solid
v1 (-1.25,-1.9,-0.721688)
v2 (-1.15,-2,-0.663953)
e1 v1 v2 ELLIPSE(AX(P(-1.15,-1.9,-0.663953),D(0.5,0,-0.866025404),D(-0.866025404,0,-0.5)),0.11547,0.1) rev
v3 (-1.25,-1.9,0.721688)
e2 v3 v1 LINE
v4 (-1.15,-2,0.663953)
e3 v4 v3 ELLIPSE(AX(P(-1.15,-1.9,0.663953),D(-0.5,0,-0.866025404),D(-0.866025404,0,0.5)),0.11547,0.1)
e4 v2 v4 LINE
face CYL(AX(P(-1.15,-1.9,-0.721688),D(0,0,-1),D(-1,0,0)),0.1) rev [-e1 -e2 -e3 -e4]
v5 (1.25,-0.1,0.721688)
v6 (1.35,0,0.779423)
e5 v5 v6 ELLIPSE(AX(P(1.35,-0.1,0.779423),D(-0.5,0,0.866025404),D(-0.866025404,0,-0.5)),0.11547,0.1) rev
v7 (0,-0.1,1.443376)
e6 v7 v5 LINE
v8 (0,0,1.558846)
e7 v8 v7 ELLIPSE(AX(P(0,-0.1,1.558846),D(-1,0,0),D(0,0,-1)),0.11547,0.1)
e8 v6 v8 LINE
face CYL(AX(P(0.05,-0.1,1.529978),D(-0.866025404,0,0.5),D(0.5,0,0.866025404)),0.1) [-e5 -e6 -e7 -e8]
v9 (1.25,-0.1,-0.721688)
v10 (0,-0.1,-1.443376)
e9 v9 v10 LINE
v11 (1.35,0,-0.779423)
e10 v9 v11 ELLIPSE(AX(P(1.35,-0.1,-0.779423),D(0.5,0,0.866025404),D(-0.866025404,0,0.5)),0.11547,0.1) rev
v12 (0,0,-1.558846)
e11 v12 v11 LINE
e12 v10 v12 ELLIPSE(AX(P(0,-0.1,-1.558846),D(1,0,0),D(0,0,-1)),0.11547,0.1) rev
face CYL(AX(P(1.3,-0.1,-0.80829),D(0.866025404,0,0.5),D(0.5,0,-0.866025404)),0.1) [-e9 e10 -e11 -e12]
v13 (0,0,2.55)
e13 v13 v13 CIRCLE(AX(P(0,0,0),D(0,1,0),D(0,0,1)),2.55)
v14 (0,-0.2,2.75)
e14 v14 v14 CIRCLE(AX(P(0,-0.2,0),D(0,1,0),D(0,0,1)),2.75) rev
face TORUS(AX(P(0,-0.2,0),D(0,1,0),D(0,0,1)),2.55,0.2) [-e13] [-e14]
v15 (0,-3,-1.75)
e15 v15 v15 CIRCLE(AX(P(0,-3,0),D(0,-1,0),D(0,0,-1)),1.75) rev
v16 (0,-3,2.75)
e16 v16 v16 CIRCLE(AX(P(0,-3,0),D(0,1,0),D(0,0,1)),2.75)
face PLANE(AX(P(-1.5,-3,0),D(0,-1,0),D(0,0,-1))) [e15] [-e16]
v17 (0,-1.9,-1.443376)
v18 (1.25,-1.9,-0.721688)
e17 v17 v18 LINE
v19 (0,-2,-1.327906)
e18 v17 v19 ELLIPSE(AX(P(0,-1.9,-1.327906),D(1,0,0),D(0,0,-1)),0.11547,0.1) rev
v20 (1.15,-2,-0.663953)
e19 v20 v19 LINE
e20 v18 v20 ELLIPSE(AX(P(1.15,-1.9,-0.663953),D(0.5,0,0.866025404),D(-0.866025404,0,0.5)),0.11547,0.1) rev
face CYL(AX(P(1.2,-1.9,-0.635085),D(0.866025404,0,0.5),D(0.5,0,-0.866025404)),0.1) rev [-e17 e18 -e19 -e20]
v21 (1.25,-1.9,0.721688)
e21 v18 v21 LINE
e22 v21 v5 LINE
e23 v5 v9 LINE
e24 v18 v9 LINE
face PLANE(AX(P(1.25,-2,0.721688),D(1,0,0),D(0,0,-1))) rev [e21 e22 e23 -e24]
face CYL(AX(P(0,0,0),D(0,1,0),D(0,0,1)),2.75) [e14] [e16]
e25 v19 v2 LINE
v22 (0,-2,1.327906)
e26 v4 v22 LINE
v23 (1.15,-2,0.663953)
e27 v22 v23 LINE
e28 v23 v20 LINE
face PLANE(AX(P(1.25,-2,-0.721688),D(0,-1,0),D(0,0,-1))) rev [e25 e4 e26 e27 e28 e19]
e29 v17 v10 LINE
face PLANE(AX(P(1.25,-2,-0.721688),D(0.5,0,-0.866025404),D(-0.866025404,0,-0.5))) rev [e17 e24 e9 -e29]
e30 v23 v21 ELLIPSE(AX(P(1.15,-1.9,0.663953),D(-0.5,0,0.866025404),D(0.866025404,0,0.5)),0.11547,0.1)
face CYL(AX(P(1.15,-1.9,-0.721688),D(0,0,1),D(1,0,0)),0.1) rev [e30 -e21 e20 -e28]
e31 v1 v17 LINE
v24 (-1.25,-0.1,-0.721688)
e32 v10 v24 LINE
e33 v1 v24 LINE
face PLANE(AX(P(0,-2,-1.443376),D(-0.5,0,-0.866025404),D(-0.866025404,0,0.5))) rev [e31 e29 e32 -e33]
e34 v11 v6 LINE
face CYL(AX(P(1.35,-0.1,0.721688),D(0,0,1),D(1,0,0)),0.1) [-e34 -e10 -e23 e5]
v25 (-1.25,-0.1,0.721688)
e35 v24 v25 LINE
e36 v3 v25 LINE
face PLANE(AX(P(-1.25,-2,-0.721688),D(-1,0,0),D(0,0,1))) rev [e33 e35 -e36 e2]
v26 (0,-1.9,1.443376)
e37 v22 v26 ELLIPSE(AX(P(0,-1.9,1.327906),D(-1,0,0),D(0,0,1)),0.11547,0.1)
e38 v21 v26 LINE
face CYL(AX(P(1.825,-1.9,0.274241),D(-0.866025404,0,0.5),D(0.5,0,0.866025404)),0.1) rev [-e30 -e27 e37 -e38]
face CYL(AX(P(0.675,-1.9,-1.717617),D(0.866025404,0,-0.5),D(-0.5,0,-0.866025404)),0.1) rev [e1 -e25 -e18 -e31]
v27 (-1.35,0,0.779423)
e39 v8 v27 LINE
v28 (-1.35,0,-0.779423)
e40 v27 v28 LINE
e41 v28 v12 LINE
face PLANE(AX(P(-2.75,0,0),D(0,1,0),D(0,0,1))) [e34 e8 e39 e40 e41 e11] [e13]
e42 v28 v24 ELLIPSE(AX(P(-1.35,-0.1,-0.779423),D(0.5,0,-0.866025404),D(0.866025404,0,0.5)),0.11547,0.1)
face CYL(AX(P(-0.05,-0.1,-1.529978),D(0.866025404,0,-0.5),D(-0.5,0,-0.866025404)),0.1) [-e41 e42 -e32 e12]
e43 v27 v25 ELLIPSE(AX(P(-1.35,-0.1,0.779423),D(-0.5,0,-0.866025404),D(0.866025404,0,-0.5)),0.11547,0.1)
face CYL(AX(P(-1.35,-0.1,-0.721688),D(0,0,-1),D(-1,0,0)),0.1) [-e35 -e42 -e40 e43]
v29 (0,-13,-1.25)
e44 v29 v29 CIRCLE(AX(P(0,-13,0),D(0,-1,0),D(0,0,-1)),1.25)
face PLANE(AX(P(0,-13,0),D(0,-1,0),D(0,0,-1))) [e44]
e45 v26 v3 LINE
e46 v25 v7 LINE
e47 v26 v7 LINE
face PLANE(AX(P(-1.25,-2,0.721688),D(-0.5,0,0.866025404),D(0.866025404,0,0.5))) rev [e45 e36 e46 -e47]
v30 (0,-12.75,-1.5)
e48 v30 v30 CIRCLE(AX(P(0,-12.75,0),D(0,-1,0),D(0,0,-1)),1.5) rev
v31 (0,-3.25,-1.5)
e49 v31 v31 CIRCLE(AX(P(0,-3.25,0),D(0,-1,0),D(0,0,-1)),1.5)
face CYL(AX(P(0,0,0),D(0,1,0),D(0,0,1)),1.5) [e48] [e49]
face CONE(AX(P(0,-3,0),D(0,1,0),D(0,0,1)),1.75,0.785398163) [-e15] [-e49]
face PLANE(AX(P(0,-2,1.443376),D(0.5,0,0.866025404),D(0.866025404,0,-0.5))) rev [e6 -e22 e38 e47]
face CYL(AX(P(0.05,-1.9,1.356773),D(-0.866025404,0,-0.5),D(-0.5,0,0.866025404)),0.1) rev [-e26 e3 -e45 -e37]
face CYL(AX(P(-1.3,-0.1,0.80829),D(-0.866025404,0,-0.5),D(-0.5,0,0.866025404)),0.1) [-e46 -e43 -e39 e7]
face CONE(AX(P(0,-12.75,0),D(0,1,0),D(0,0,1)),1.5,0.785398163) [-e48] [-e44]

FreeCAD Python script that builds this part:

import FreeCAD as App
import Part
import Sketcher

V = App.Vector
Q = App.Units.Quantity


def edges_at(feature, points):
    """Names of the edges that pass closest to the given points."""
    edges = feature.Shape.Edges
    near = lambda p: min(range(len(edges)), key=lambda i: edges[i].distToShape(Part.Vertex(*p))[0])
    return sorted({f"Edge{near(p) + 1}" for p in points})


def add_polygon(sketch, points):
    """Adds a closed chain of lines whose ends are joined by coincident constraints."""
    first, n = sketch.GeometryCount, len(points)
    for a, b in zip(points, points[1:] + points[:1]):
        sketch.addGeometry(Part.LineSegment(App.Vector(*a, 0), App.Vector(*b, 0)), False)
    for i in range(n):
        sketch.addConstraint(Sketcher.Constraint("Coincident", first + i, 2, first + (i + 1) % n, 1))

doc = App.newDocument("Part")
body = doc.addObject("PartDesign::Body", "Body")

# Sketch on XY plane
sketch1 = body.newObject("Sketcher::SketchObject", "Sketch")
sketch1.AttachmentSupport = (doc.getObject("XY_Plane"), [""])
sketch1.MapMode = "FlatFace"
add_polygon(sketch1, [(-1.5, -13), (0, -13), (0, 0), (-2.8, 0), (-2.8, -3), (-1.5, -3)])  # lines 0-5
sketch1.addConstraint(Sketcher.Constraint("Horizontal", 0))
sketch1.addConstraint(Sketcher.Constraint("Vertical", 1))
sketch1.addConstraint(Sketcher.Constraint("Horizontal", 2))
sketch1.addConstraint(Sketcher.Constraint("Vertical", 3))
sketch1.addConstraint(Sketcher.Constraint("Horizontal", 4))
sketch1.addConstraint(Sketcher.Constraint("Vertical", 5))
sketch1.addConstraint(Sketcher.Constraint("Coincident", 1, 2, -1, 1))
sketch1.addConstraint(Sketcher.Constraint("DistanceY", 1, 1, 1, 2, Q("13 mm")))
sketch1.addConstraint(Sketcher.Constraint("DistanceY", 3, 2, 3, 1, Q("3 mm")))
sketch1.addConstraint(Sketcher.Constraint("DistanceX", 0, 1, 0, 2, Q("1.5 mm")))
sketch1.addConstraint(Sketcher.Constraint("DistanceX", 2, 2, 2, 1, Q("2.75 mm")))
revolution = body.newObject("PartDesign::Revolution", "Revolution")
revolution.Profile = sketch1
revolution.ReferenceAxis = (sketch1, ["V_Axis"])
revolution.Angle = 360
doc.recompute()

chamfer = body.newObject("PartDesign::Chamfer", "Chamfer")
chamfer.Base = (revolution, edges_at(revolution, [(1.5, -3, 0), (1.5, -13, 0)]))
chamfer.Size = 0.25
doc.recompute()

fillet = body.newObject("PartDesign::Fillet", "Fillet")
fillet.Base = (chamfer, edges_at(chamfer, [(2.75, 0, 0)]))
fillet.Radius = 0.2

# Sketch on XZ plane
sketch2 = body.newObject("Sketcher::SketchObject", "Sketch001")
sketch2.AttachmentSupport = (doc.getObject("XZ_Plane"), [""])
sketch2.MapMode = "FlatFace"
add_polygon(sketch2, [(0, -1.4), (-1.2, -0.7), (-1.2, 0.7), (0, 1.4), (1.2, 0.7), (1.2, -0.7)])  # lines 0-5
sketch2.addConstraint(Sketcher.Constraint("Vertical", 1))
sketch2.addConstraint(Sketcher.Constraint("Vertical", 4))
sketch2.addConstraint(Sketcher.Constraint("Symmetric", 0, 2, 3, 2, -1, 1))
sketch2.addConstraint(Sketcher.Constraint("Symmetric", 2, 2, 5, 2, -1, 1))
sketch2.addConstraint(Sketcher.Constraint("PointOnObject", 2, 2, -2))
sketch2.addConstraint(Sketcher.Constraint("Parallel", 2, 5))
sketch2.addConstraint(Sketcher.Constraint("Horizontal", 1, 2, 3, 2))
sketch2.addConstraint(Sketcher.Constraint("Angle", 0, Q("150 deg")))
sketch2.addConstraint(Sketcher.Constraint("DistanceX", 1, 2, 3, 2, Q("2.5 mm")))
sketch2.addConstraint(Sketcher.Constraint("DistanceY", 1, 1, 1, 2, Q("1.443376 mm")))
pocket1 = body.newObject("PartDesign::Pocket", "Pocket")
pocket1.Profile = sketch2
pocket1.Length = 2
pocket1.Reversed = True
doc.recompute()

fillet2 = body.newObject("PartDesign::Fillet", "Fillet001")
fillet2.Base = (pocket1, edges_at(pocket1, [
    (0.625, -2, -1.083),
    (1.25, -2, 0),
    (0.625, -2, 1.083),
    (-0.625, -2, 1.083),
    (-1.25, -2, 0),
    (-0.625, -2, -1.083),
    (0.625, 0, -1.083),
    (-0.625, 0, -1.083),
    (-1.25, 0, 0),
    (-0.625, 0, 1.083),
    (0.625, 0, 1.083),
    (1.25, 0, 0),
]))
fillet2.Radius = 0.1

doc.recompute()
